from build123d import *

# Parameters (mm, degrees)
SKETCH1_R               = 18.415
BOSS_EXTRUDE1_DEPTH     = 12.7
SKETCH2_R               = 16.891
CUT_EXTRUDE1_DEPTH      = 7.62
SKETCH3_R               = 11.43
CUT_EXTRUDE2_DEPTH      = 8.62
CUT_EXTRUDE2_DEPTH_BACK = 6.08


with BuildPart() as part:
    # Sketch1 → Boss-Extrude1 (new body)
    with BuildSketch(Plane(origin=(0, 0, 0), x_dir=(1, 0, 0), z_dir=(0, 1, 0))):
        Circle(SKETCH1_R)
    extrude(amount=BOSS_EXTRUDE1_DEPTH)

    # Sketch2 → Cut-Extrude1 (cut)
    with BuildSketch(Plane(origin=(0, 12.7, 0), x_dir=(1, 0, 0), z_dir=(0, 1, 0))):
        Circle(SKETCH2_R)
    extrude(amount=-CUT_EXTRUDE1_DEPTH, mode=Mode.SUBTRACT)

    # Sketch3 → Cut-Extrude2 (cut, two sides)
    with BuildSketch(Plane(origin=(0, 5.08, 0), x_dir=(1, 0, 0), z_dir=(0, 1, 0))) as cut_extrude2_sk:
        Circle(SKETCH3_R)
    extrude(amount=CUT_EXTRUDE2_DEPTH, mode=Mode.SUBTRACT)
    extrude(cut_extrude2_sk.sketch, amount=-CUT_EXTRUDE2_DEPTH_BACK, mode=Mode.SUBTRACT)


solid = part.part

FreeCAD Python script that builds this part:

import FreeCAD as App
import Part
import Sketcher
from FreeCAD import Vector
Q = App.Units.Quantity

doc = App.newDocument("Part")
body = doc.addObject("PartDesign::Body", "Body")

# Sketch on XZ plane
sketch1 = body.newObject("Sketcher::SketchObject", "Sketch")
sketch1.AttachmentSupport = (doc.getObject("XZ_Plane"), [""])
sketch1.MapMode = "FlatFace"
sketch1.addGeometry(Part.Circle(Vector(0, 0, 0), Vector(0, 0, 1), 18.415), False)
sketch1.addConstraint(Sketcher.Constraint("Coincident", 0, 3, -1, 1))
sketch1.addConstraint(Sketcher.Constraint("Diameter", 0, Q("1.45 in")))
pad1 = body.newObject("PartDesign::Pad", "Pad")
pad1.Profile = sketch1
pad1.Length = Q("0.5 in")
pad1.Reversed = True

# Sketch on XZ plane
sketch2 = body.newObject("Sketcher::SketchObject", "Sketch001")
sketch2.AttachmentSupport = (doc.getObject("XZ_Plane"), [""])
sketch2.MapMode = "FlatFace"
sketch2.AttachmentOffset = App.Placement(Vector(0, 0, -0.5 * 25.4), App.Rotation())
sketch2.addGeometry(Part.Circle(Vector(0, 0, 0), Vector(0, 0, 1), 16.891), False)
sketch2.addConstraint(Sketcher.Constraint("Coincident", 0, 3, -1, 1))
sketch2.addConstraint(Sketcher.Constraint("Diameter", 0, Q("1.33 in")))
pocket1 = body.newObject("PartDesign::Pocket", "Pocket")
pocket1.Profile = sketch2
pocket1.Length = Q("0.3 in")
pocket1.Reversed = True

# Sketch on XZ plane
sketch3 = body.newObject("Sketcher::SketchObject", "Sketch002")
sketch3.AttachmentSupport = (doc.getObject("XZ_Plane"), [""])
sketch3.MapMode = "FlatFace"
sketch3.AttachmentOffset = App.Placement(Vector(0, 0, -0.2 * 25.4), App.Rotation())
sketch3.addGeometry(Part.Circle(Vector(0, 0, 0), Vector(0, 0, 1), 11.43), False)
sketch3.addConstraint(Sketcher.Constraint("Coincident", 0, 3, -1, 1))
sketch3.addConstraint(Sketcher.Constraint("Diameter", 0, Q("0.9 in")))
pocket2 = body.newObject("PartDesign::Pocket", "Pocket001")
pocket2.Profile = sketch3
pocket2.Type = "ThroughAll"
pocket2.Midplane = True

doc.recompute()
